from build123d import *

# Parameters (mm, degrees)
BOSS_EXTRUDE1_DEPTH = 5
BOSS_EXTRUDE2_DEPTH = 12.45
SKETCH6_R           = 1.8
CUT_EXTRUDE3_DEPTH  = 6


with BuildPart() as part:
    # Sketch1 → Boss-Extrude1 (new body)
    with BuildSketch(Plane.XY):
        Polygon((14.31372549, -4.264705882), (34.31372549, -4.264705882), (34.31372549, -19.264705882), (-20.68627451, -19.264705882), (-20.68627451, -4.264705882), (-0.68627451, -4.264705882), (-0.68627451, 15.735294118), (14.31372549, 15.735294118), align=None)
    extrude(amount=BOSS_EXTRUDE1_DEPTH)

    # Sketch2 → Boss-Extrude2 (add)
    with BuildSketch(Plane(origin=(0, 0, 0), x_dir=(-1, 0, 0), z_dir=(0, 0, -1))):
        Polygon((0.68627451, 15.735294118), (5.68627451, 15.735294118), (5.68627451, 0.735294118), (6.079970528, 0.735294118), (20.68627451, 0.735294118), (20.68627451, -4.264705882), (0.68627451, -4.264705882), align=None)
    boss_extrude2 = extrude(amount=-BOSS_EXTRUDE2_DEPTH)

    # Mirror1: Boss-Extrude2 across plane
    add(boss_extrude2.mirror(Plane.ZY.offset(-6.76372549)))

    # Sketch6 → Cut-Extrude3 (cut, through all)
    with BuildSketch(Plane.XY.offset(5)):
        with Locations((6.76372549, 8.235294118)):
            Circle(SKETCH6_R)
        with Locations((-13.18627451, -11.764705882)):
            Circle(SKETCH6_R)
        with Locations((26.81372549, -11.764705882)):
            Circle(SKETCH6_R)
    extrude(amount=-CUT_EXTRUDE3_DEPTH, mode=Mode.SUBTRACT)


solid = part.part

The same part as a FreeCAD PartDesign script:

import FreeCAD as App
import Part
import Sketcher
Q = App.Units.Quantity


def add_polygon(sketch, points):
    """Adds a closed chain of lines whose ends are joined by coincident constraints."""
    first, n = sketch.GeometryCount, len(points)
    for a, b in zip(points, points[1:] + points[:1]):
        sketch.addGeometry(Part.LineSegment(App.Vector(*a, 0), App.Vector(*b, 0)), False)
    for i in range(n):
        sketch.addConstraint(Sketcher.Constraint("Coincident", first + i, 2, first + (i + 1) % n, 1))

doc = App.newDocument("Part")
body = doc.addObject("PartDesign::Body", "Body")

sketch1 = body.newObject("Sketcher::SketchObject", "Sketch")
sketch1.AttachmentSupport = (doc.getObject("XY_Plane"), [""])
sketch1.MapMode = "FlatFace"
add_polygon(sketch1, [(34, -4), (14, -4), (14, 16), (-1, 16), (-1, -4), (-21, -4), (-21, -19), (34, -19)])
sketch1.addConstraint([
    Sketcher.Constraint("Horizontal", 0),
    Sketcher.Constraint("Vertical", 1),
    Sketcher.Constraint("Horizontal", 2),
    Sketcher.Constraint("Vertical", 3),
    Sketcher.Constraint("Horizontal", 4),
    Sketcher.Constraint("Vertical", 5),
    Sketcher.Constraint("Horizontal", 6),
    Sketcher.Constraint("Vertical", 7),
    Sketcher.Constraint("Horizontal", 0, 2, 3, 2),
    Sketcher.Constraint("Equal", 0, 4),
    Sketcher.Constraint("Equal", 4, 1),
    Sketcher.Constraint("Equal", 2, 5),
    Sketcher.Constraint("DistanceX", 0, 2, 0, 1, Q("20 mm")),
    Sketcher.Constraint("DistanceX", 2, 2, 2, 1, Q("15 mm")),
    Sketcher.Constraint("DistanceX", -1, 1, 0, 2, Q("14.313725 mm")),
    Sketcher.Constraint("DistanceY", 0, 2, -1, 1, Q("4.264706 mm")),
])
pad1 = body.newObject("PartDesign::Pad", "Pad")
pad1.Profile = sketch1
pad1.Length = 5

sketch2 = body.newObject("Sketcher::SketchObject", "Sketch001")
sketch2.AttachmentSupport = (doc.getObject("XY_Plane"), [""])
sketch2.MapMode = "FlatFace"
add_polygon(sketch2, [(-6, 16), (-1, 16), (-1, -4), (-21, -4), (-21, 1), (-6, 1)])
sketch2.addConstraint([
    Sketcher.Constraint("Horizontal", 0),
    Sketcher.Constraint("Vertical", 1),
    Sketcher.Constraint("Horizontal", 2),
    Sketcher.Constraint("Vertical", 3),
    Sketcher.Constraint("Horizontal", 4),
    Sketcher.Constraint("Vertical", 5),
    Sketcher.Constraint("Equal", 2, 1),
    Sketcher.Constraint("Equal", 0, 3),
    Sketcher.Constraint("DistanceX", 0, 1, 0, 2, Q("5 mm")),
    Sketcher.Constraint("DistanceX", 2, 2, 2, 1, Q("20 mm")),
    Sketcher.Constraint("DistanceX", 0, 2, -1, 1, Q("0.686275 mm")),
    Sketcher.Constraint("DistanceY", -1, 1, 0, 2, Q("15.735294 mm")),
])
pad2 = body.newObject("PartDesign::Pad", "Pad001")
pad2.Profile = sketch2
pad2.Length = 12.45
doc.recompute()

datumplane = body.newObject("PartDesign::Plane", "DatumPlane")
datumplane.AttachmentSupport = (doc.getObject("YZ_Plane"), [""])
datumplane.MapMode = "FlatFace"
datumplane.AttachmentOffset = App.Placement(App.Vector(0, 0, 6.763725), App.Rotation())
mirrored = body.newObject("PartDesign::Mirrored", "Mirrored")
mirrored.Originals = [pad2]
mirrored.MirrorPlane = (datumplane, [""])
body.Tip = mirrored

sketch3 = body.newObject("Sketcher::SketchObject", "Sketch002")
sketch3.AttachmentSupport = (doc.getObject("XY_Plane"), [""])
sketch3.MapMode = "FlatFace"
sketch3.AttachmentOffset = App.Placement(App.Vector(0, 0, 5), App.Rotation())
sketch3.addGeometry([
    Part.Circle(App.Vector(6.8, 8.2, 0), App.Vector(0, 0, 1), 1.8),
    Part.Circle(App.Vector(-13.2, -11.8, 0), App.Vector(0, 0, 1), 1.8),
    Part.Circle(App.Vector(26.8, -11.8, 0), App.Vector(0, 0, 1), 1.8),
], False)
sketch3.addConstraint([
    Sketcher.Constraint("Equal", 0, 1),
    Sketcher.Constraint("Equal", 1, 2),
    Sketcher.Constraint("Horizontal", 1, 3, 2, 3),
    Sketcher.Constraint("Diameter", 0, Q("3.6 mm")),
    Sketcher.Constraint("DistanceY", 1, 3, 0, 3, Q("20 mm")),
    Sketcher.Constraint("DistanceX", 1, 3, 2, 3, Q("40 mm")),
    Sketcher.Constraint("DistanceX", 1, 3, 0, 3, Q("19.95 mm")),
    Sketcher.Constraint("DistanceX", -1, 1, 0, 3, Q("6.763725 mm")),
    Sketcher.Constraint("DistanceY", -1, 1, 0, 3, Q("8.235294 mm")),
])
pocket1 = body.newObject("PartDesign::Pocket", "Pocket")
pocket1.Profile = sketch3
pocket1.Type = "ThroughAll"

doc.recompute()
